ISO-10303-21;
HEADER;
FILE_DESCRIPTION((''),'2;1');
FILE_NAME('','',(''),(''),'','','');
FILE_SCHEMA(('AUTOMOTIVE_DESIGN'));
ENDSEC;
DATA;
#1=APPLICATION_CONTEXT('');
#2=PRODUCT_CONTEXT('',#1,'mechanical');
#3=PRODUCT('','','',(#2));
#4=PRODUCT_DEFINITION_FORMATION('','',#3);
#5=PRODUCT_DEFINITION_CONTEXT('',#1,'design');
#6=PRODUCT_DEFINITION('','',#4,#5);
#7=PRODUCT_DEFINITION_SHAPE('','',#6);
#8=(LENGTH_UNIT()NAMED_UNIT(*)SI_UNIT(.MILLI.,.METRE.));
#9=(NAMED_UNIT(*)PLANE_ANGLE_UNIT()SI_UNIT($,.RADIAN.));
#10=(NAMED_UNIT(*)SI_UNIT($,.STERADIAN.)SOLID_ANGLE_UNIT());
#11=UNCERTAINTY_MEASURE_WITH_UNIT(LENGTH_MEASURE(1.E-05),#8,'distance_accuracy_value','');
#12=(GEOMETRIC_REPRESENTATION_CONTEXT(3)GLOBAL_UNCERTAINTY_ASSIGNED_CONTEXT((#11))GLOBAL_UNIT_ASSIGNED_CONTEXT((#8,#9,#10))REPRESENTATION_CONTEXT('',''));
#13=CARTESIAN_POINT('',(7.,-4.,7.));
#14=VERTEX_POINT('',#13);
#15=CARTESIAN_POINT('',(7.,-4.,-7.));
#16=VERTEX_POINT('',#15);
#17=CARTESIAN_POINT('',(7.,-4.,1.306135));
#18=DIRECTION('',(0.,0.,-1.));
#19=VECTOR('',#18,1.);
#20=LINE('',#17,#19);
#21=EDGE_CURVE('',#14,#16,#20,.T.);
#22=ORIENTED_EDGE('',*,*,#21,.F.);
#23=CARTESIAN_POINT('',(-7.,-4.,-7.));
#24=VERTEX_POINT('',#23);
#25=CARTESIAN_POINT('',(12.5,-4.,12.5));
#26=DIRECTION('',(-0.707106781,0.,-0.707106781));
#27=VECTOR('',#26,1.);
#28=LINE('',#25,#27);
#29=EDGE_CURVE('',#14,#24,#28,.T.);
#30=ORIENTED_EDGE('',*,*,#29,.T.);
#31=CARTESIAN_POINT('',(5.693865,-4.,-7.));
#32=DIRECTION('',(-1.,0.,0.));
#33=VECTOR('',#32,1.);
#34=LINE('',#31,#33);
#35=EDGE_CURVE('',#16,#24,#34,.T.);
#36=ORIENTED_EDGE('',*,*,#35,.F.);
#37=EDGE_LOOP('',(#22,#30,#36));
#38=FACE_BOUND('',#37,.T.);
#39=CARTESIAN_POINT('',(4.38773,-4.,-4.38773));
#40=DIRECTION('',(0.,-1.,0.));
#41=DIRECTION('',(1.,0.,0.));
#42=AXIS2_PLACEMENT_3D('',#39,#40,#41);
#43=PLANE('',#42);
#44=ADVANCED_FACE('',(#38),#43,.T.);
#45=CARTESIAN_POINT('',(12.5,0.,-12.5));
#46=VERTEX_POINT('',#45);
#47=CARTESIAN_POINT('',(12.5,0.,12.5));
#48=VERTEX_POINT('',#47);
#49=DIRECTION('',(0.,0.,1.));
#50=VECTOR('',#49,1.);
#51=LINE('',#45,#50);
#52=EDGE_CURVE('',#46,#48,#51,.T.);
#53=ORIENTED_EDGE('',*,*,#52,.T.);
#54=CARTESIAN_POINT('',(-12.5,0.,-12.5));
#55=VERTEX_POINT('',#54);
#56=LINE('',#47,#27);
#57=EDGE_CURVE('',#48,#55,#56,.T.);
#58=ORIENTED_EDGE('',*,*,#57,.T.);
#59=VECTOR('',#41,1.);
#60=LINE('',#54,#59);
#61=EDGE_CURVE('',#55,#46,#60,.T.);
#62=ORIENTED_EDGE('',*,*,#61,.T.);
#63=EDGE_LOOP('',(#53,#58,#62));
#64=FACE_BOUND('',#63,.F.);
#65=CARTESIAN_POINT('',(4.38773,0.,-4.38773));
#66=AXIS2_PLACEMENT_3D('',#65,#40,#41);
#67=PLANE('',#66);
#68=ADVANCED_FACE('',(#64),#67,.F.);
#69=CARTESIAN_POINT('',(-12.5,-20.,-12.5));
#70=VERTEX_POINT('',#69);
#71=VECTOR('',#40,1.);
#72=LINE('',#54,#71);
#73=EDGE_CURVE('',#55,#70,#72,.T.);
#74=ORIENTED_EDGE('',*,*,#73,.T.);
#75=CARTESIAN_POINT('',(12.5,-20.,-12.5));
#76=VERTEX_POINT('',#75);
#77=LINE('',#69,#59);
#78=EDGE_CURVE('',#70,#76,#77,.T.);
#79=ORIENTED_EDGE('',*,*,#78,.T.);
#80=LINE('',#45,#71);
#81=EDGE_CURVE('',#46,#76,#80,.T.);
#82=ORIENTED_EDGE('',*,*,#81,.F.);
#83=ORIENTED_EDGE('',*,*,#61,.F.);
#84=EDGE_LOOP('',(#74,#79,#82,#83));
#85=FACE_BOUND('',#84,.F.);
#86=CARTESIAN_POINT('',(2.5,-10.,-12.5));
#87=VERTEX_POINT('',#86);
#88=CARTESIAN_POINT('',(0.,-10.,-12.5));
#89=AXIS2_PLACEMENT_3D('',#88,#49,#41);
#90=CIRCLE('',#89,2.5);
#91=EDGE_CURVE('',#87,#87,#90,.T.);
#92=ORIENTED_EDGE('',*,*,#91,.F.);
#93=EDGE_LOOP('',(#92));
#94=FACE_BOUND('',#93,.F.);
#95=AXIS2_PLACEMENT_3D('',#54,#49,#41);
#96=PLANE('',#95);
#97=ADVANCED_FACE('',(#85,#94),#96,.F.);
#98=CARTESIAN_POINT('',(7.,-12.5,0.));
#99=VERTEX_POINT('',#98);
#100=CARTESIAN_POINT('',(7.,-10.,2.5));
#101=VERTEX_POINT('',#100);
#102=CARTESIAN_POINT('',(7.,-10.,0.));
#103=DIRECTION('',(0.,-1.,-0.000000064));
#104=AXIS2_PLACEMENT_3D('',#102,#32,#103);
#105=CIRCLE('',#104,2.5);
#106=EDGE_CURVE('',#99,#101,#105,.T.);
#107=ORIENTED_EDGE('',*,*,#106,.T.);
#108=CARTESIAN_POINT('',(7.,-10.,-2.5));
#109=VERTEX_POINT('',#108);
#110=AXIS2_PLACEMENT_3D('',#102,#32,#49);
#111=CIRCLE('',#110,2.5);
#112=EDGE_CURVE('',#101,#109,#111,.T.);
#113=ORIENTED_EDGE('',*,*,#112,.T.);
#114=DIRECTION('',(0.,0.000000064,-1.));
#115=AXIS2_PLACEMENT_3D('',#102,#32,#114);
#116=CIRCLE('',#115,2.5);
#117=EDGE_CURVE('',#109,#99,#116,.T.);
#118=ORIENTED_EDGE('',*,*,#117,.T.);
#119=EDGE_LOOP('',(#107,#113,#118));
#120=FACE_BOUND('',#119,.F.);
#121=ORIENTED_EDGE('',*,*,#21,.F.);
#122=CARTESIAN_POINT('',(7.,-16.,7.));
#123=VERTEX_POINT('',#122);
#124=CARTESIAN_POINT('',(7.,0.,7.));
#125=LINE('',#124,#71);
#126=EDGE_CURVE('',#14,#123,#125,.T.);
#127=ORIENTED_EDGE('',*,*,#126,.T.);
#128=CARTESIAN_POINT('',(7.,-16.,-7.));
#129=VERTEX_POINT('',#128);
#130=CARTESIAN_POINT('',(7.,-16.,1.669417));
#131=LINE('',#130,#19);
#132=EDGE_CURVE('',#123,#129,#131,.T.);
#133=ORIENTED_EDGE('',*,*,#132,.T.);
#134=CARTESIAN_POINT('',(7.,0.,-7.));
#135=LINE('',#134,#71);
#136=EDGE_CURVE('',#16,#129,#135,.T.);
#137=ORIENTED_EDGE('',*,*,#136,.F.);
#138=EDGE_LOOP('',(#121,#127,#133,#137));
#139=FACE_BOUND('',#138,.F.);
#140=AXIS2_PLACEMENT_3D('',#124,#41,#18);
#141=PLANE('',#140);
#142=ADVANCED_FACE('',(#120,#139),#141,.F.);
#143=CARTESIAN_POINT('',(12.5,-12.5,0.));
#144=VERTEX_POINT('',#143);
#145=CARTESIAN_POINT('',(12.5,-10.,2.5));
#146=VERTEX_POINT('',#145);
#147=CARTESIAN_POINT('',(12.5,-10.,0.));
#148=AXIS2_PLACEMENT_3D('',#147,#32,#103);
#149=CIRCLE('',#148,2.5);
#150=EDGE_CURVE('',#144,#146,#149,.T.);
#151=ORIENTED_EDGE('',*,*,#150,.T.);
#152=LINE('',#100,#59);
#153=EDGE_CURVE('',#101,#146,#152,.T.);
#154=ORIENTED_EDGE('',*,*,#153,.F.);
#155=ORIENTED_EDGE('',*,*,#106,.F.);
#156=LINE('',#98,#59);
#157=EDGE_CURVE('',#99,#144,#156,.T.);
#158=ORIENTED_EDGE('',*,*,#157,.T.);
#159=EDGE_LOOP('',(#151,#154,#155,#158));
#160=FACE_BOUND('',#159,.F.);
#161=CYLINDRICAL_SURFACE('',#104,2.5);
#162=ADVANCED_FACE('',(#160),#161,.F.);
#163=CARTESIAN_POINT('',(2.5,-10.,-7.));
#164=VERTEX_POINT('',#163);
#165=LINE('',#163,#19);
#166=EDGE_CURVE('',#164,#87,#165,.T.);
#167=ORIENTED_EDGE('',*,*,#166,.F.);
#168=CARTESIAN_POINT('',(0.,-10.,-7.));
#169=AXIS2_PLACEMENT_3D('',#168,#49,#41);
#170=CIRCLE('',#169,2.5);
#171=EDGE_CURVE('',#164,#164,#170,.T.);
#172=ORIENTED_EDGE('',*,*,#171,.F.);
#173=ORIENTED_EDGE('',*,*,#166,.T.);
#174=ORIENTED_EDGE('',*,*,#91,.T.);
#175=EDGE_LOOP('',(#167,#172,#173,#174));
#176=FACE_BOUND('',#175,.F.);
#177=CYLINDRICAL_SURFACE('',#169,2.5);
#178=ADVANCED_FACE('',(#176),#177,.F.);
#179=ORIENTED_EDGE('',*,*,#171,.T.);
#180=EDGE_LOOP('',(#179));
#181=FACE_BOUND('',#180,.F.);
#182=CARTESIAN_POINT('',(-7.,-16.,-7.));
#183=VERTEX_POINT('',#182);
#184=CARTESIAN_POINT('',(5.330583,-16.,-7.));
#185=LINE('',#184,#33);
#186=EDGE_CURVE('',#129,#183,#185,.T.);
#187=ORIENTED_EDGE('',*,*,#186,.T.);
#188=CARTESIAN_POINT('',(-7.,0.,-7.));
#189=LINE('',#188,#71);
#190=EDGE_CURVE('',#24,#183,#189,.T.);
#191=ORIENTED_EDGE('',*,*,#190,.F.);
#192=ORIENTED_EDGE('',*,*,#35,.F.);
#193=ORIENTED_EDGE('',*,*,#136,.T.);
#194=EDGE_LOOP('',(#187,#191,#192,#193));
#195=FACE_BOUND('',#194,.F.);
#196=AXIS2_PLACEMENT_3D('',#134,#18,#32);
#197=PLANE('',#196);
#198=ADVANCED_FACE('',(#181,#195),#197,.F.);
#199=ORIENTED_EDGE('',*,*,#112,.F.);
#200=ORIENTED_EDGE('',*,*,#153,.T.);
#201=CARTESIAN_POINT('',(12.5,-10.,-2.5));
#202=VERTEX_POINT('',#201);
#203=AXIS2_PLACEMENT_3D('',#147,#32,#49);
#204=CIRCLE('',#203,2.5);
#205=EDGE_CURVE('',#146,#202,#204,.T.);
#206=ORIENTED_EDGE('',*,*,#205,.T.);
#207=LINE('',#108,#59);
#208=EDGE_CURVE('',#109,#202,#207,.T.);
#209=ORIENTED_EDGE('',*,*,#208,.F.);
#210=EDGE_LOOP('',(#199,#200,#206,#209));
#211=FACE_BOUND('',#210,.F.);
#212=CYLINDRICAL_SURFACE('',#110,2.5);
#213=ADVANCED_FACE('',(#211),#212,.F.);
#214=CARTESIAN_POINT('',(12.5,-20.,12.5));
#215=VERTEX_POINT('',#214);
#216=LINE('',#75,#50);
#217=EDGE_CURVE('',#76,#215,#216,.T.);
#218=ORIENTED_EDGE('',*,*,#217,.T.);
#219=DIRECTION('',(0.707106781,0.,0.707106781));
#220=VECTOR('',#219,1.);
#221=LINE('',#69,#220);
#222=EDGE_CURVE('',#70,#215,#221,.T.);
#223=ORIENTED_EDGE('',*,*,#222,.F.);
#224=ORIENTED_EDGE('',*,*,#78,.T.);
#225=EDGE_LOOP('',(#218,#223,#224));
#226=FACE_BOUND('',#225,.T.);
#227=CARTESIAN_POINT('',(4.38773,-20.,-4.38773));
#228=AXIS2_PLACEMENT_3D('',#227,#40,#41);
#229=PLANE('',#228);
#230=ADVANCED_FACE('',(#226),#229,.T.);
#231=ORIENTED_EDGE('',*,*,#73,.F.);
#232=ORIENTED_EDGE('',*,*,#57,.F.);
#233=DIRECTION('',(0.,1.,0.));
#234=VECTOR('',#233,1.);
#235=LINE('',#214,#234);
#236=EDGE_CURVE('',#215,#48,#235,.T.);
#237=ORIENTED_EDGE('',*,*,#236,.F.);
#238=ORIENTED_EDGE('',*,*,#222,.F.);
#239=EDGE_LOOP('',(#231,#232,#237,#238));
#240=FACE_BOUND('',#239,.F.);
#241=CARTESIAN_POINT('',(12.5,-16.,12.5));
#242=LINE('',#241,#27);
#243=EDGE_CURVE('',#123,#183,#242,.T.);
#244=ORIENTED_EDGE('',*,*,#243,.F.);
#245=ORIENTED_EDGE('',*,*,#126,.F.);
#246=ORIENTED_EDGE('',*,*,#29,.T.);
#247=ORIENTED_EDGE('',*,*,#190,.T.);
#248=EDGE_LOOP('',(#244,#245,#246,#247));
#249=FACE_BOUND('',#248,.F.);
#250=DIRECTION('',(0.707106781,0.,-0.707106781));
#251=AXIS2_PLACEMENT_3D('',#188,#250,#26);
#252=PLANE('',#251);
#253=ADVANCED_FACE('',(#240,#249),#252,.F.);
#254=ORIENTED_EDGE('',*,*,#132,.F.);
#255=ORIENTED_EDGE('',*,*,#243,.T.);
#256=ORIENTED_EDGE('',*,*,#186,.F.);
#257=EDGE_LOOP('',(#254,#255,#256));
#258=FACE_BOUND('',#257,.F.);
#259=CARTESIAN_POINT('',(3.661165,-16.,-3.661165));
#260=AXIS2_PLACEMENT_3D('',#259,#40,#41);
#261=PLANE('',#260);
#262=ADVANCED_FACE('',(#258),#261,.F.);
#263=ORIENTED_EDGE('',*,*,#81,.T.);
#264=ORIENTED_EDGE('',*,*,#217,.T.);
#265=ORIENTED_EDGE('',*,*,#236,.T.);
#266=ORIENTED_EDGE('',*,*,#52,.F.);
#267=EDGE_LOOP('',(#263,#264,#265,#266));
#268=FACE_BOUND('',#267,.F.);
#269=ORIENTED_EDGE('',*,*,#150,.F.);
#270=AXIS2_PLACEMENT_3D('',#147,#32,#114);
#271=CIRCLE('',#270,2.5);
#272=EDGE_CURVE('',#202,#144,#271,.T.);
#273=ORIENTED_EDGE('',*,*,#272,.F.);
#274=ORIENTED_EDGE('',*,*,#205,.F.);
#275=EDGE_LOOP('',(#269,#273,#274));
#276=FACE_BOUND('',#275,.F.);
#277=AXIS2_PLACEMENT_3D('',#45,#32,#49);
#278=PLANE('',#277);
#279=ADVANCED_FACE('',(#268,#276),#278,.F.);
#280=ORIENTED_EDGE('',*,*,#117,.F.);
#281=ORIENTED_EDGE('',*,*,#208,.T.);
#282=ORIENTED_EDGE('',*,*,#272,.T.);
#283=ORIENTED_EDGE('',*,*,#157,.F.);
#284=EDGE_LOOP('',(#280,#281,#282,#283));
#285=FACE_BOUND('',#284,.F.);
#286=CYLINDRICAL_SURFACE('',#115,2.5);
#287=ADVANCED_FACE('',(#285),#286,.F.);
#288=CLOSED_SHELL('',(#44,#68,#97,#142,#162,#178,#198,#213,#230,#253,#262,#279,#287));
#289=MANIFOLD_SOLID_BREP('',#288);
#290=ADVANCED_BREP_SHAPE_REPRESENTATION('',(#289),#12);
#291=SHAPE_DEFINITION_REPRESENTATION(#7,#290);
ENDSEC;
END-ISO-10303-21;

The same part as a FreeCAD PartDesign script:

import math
import FreeCAD as App
import Part
import Sketcher
from FreeCAD import Vector


def add_polygon(sketch, points):
    """Adds a closed chain of lines whose ends are joined by coincident constraints."""
    first, n = sketch.GeometryCount, len(points)
    for a, b in zip(points, points[1:] + points[:1]):
        sketch.addGeometry(Part.LineSegment(App.Vector(*a, 0), App.Vector(*b, 0)), False)
    for i in range(n):
        sketch.addConstraint(Sketcher.Constraint("Coincident", first + i, 2, first + (i + 1) % n, 1))

doc = App.newDocument("Part")
body = doc.addObject("PartDesign::Body", "Body")

# Sketch on XZ plane
sketch1 = doc.addObject("Sketcher::SketchObject", "Sketch")
body.addObject(sketch1)
sketch1.AttachmentSupport = (doc.XZ_Plane, [""])
sketch1.MapMode = "FlatFace"
add_polygon(sketch1, [(-7, -7), (-12, -12), (12, -12), (12, 12), (7, 7), (7, -7)])  # lines 0-5
sketch1.addConstraint([
    Sketcher.Constraint("Horizontal", 1),
    Sketcher.Constraint("Vertical", 2),
    Sketcher.Constraint("Vertical", 4),
    Sketcher.Constraint("Horizontal", 5),
    Sketcher.Constraint("Symmetric", 0, 2, 2, 2, -1, 1),
    Sketcher.Constraint("Symmetric", 3, 2, 5, 2, -1, 1),
    Sketcher.Constraint("Equal", 1, 2),
    Sketcher.Constraint("Equal", 5, 4),
    Sketcher.Constraint("DistanceX", 1, 1, 1, 2, 25.0),
    Sketcher.Constraint("DistanceX", 5, 2, 5, 1, 14.0),
])
pad1 = doc.addObject("PartDesign::Pad", "Pad")
body.addObject(pad1)
pad1.Profile = sketch1
pad1.Length = 20

# Sketch on XZ plane
sketch2 = doc.addObject("Sketcher::SketchObject", "Sketch001")
body.addObject(sketch2)
sketch2.AttachmentSupport = (doc.XZ_Plane, [""])
sketch2.MapMode = "FlatFace"
add_polygon(sketch2, [(-12, -12), (12, -12), (12, 12)])  # lines 0-2
sketch2.addConstraint([
    Sketcher.Constraint("Horizontal", 0),
    Sketcher.Constraint("Vertical", 1),
    Sketcher.Constraint("Symmetric", 1, 2, 2, 2, -1, 1),
    Sketcher.Constraint("Equal", 0, 1),
    Sketcher.Constraint("DistanceX", 0, 1, 0, 2, 25.0),
])
pad2 = doc.addObject("PartDesign::Pad", "Pad001")
body.addObject(pad2)
pad2.Profile = sketch2
pad2.Length = 4

# Sketch on XZ plane
sketch3 = doc.addObject("Sketcher::SketchObject", "Sketch002")
body.addObject(sketch3)
sketch3.AttachmentSupport = (doc.XZ_Plane, [""])
sketch3.MapMode = "FlatFace"
sketch3.AttachmentOffset = App.Placement(Vector(0, 0, 20), App.Rotation())
add_polygon(sketch3, [(12, 12), (-12, -12), (12, -12)])  # lines 0-2
sketch3.addConstraint([
    Sketcher.Constraint("Horizontal", 1),
    Sketcher.Constraint("Vertical", 2),
    Sketcher.Constraint("Symmetric", 0, 2, 2, 2, -1, 1),
    Sketcher.Constraint("Equal", 1, 2),
    Sketcher.Constraint("DistanceX", 1, 1, 1, 2, 25.0),
])
pad3 = doc.addObject("PartDesign::Pad", "Pad002")
body.addObject(pad3)
pad3.Profile = sketch3
pad3.Length = 4
pad3.Reversed = True

# Sketch on YZ plane
sketch4 = doc.addObject("Sketcher::SketchObject", "Sketch003")
body.addObject(sketch4)
sketch4.AttachmentSupport = (doc.YZ_Plane, [""])
sketch4.MapMode = "FlatFace"
sketch4.AttachmentOffset = App.Placement(Vector(0, 0, 7), App.Rotation())
sketch4.addGeometry([
    Part.ArcOfCircle(Part.Circle(Vector(-10, 0, 0), Vector(0, 0, 1), 2.5), math.radians(180), math.radians(270)),
    Part.ArcOfCircle(Part.Circle(Vector(-10, 0, 0), Vector(0, 0, 1), 2.5), math.radians(90), math.radians(180)),
    Part.ArcOfCircle(Part.Circle(Vector(-10, 0, 0), Vector(0, 0, 1), 2.5), math.radians(-90), math.radians(90)),
], False)
sketch4.addConstraint([
    Sketcher.Constraint("Tangent", 0, 1, 1, 2),
    Sketcher.Constraint("Tangent", 1, 1, 2, 2),
    Sketcher.Constraint("Tangent", 2, 1, 0, 2),
    Sketcher.Constraint("Symmetric", 1, 1, 2, 1, -1),
    Sketcher.Constraint("PointOnObject", 0, 1, -1),
    Sketcher.Constraint("Vertical", 2, 3, 1, 1),
    Sketcher.Constraint("Radius", 0, 2.5),
    Sketcher.Constraint("DistanceX", 0, 3, -1, 1, 10.0),
])
pocket1 = doc.addObject("PartDesign::Pocket", "Pocket")
body.addObject(pocket1)
pocket1.Profile = sketch4
pocket1.Length = 25.4
pocket1.Reversed = True

# Sketch on XY plane
sketch5 = doc.addObject("Sketcher::SketchObject", "Sketch004")
body.addObject(sketch5)
sketch5.AttachmentSupport = (doc.XY_Plane, [""])
sketch5.MapMode = "FlatFace"
sketch5.AttachmentOffset = App.Placement(Vector(0, 0, -7), App.Rotation())
sketch5.addGeometry(Part.Circle(Vector(0, -10, 0), Vector(0, 0, 1), 2.5), False)
sketch5.addConstraint([
    Sketcher.Constraint("PointOnObject", 0, 3, -2),
    Sketcher.Constraint("Diameter", 0, 5.0),
    Sketcher.Constraint("DistanceY", 0, 3, -1, 1, 10.0),
])
pocket2 = doc.addObject("PartDesign::Pocket", "Pocket001")
body.addObject(pocket2)
pocket2.Profile = sketch5
pocket2.Length = 25.4

doc.recompute()
